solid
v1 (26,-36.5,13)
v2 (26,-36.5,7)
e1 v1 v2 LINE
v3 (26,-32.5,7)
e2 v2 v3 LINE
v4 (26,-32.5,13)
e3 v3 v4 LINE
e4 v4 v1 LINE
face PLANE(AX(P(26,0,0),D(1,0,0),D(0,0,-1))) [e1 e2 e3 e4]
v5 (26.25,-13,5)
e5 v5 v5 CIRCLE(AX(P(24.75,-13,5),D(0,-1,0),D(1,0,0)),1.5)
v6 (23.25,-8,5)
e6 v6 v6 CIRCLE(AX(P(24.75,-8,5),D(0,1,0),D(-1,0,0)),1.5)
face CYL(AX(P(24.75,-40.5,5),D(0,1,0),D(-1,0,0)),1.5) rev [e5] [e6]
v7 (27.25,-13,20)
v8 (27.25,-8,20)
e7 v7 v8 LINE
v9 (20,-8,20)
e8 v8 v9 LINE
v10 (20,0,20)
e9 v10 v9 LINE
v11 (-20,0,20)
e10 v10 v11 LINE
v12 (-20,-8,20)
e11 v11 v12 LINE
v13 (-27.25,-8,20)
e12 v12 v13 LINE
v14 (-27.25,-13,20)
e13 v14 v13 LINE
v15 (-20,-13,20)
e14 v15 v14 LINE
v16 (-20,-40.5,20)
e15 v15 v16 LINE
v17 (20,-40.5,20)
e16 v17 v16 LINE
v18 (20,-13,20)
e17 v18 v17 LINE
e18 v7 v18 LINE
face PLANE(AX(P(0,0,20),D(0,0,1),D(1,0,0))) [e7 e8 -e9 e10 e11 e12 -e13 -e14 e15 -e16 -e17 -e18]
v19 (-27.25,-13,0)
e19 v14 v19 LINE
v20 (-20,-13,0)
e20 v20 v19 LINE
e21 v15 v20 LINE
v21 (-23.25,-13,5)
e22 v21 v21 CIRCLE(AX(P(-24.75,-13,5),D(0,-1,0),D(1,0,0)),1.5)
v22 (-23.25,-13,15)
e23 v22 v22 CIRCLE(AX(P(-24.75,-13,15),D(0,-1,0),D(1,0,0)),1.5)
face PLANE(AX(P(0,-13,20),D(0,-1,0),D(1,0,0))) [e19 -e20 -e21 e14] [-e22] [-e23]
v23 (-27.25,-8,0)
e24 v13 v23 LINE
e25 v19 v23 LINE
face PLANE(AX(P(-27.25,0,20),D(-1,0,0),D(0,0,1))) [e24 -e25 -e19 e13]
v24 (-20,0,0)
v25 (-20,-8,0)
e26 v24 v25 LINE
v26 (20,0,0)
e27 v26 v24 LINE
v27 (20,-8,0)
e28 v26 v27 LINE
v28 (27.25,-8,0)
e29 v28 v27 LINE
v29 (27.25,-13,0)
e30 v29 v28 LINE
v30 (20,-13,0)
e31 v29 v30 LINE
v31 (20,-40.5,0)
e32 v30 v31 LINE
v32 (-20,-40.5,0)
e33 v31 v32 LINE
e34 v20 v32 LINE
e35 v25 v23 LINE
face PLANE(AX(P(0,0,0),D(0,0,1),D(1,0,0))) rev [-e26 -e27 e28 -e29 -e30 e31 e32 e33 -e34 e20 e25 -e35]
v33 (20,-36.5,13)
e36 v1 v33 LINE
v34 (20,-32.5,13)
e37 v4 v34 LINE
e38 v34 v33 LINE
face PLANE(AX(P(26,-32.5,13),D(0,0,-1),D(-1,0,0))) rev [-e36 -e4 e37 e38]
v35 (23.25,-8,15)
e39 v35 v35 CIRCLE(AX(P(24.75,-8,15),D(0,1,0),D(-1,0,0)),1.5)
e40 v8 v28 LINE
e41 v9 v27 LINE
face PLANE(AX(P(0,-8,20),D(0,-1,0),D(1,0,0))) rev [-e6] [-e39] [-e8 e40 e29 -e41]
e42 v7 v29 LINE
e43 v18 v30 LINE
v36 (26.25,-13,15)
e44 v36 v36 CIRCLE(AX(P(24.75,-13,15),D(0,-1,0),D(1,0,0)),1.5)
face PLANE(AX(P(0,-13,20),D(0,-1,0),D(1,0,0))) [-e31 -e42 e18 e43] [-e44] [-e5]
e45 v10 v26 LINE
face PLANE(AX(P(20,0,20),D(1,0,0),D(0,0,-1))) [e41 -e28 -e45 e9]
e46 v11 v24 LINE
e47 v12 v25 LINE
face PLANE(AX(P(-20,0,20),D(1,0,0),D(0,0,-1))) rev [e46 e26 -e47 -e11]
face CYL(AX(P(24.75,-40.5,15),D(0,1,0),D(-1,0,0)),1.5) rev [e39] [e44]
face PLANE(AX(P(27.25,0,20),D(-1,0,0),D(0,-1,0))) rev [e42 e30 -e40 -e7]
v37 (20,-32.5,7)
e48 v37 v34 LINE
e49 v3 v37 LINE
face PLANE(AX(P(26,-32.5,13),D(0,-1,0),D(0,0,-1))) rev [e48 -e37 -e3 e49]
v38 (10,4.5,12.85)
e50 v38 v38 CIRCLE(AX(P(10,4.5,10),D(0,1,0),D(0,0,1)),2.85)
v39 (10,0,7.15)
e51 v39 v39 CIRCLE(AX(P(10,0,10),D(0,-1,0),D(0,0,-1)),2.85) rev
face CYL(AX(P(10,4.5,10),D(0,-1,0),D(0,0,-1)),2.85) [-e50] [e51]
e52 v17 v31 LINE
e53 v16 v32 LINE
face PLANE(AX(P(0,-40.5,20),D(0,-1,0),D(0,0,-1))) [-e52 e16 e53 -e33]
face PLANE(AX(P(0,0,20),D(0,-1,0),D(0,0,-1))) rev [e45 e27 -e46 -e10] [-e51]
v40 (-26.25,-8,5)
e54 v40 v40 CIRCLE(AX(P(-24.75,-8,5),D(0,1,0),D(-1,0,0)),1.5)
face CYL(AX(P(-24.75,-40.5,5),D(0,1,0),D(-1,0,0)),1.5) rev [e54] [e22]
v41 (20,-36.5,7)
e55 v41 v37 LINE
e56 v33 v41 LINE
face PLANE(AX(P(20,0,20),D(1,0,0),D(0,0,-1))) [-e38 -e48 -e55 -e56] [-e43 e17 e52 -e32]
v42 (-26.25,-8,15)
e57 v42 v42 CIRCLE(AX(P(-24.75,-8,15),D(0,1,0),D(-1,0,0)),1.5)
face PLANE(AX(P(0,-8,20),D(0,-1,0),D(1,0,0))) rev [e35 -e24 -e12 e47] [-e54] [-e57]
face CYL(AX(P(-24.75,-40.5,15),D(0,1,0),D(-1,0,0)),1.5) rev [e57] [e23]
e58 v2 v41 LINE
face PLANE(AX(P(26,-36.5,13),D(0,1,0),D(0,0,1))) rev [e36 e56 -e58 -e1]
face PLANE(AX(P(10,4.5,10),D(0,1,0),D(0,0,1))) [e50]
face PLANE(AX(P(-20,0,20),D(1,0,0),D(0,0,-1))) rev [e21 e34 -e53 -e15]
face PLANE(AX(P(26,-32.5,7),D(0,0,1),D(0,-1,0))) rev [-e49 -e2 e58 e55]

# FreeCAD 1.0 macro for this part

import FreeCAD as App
import Part
import Sketcher
Q = App.Units.Quantity


def add_polygon(sketch, points):
    """Adds a closed chain of lines whose ends are joined by coincident constraints."""
    first, n = sketch.GeometryCount, len(points)
    for a, b in zip(points, points[1:] + points[:1]):
        sketch.addGeometry(Part.LineSegment(App.Vector(*a, 0), App.Vector(*b, 0)), False)
    for i in range(n):
        sketch.addConstraint(Sketcher.Constraint("Coincident", first + i, 2, first + (i + 1) % n, 1))

doc = App.newDocument("Part")
body = doc.addObject("PartDesign::Body", "Body")

sketch1 = body.newObject("Sketcher::SketchObject", "Sketch")
sketch1.AttachmentSupport = (doc.getObject("XY_Plane"), [""])
sketch1.MapMode = "FlatFace"
add_polygon(sketch1, [(-20, 0), (-20, -8), (-27, -8), (-27, -13), (-20, -13), (-20, -40), (20, -40), (20, -13), (27, -13), (27, -8), (20, -8), (20, 0)])
sketch1.addConstraint(Sketcher.Constraint("Vertical", 0))
sketch1.addConstraint(Sketcher.Constraint("Horizontal", 1))
sketch1.addConstraint(Sketcher.Constraint("Vertical", 2))
sketch1.addConstraint(Sketcher.Constraint("Horizontal", 3))
sketch1.addConstraint(Sketcher.Constraint("Vertical", 4))
sketch1.addConstraint(Sketcher.Constraint("Horizontal", 5))
sketch1.addConstraint(Sketcher.Constraint("Vertical", 6))
sketch1.addConstraint(Sketcher.Constraint("Horizontal", 7))
sketch1.addConstraint(Sketcher.Constraint("Vertical", 8))
sketch1.addConstraint(Sketcher.Constraint("Horizontal", 9))
sketch1.addConstraint(Sketcher.Constraint("Vertical", 10))
sketch1.addConstraint(Sketcher.Constraint("Horizontal", 11))
sketch1.addConstraint(Sketcher.Constraint("Symmetric", 10, 2, 11, 2, -1, 1))
sketch1.addConstraint(Sketcher.Constraint("Symmetric", 3, 2, 6, 2, -2))
sketch1.addConstraint(Sketcher.Constraint("Symmetric", 1, 2, 8, 2, -2))
sketch1.addConstraint(Sketcher.Constraint("Vertical", 0, 2, 3, 2))
sketch1.addConstraint(Sketcher.Constraint("DistanceX", 5, 1, 5, 2, Q("40 mm")))
sketch1.addConstraint(Sketcher.Constraint("DistanceY", 0, 2, 0, 1, Q("8 mm")))
sketch1.addConstraint(Sketcher.Constraint("DistanceY", 2, 2, 2, 1, Q("5 mm")))
sketch1.addConstraint(Sketcher.Constraint("DistanceY", 4, 2, 4, 1, Q("27.5 mm")))
sketch1.addConstraint(Sketcher.Constraint("DistanceX", 1, 2, 1, 1, Q("7.25 mm")))
pad1 = body.newObject("PartDesign::Pad", "Pad")
pad1.Profile = sketch1
pad1.Length = 20

sketch2 = body.newObject("Sketcher::SketchObject", "Sketch001")
sketch2.AttachmentSupport = (doc.getObject("XZ_Plane"), [""])
sketch2.MapMode = "FlatFace"
sketch2.addGeometry(Part.Circle(App.Vector(10, 10, 0), App.Vector(0, 0, 1), 2.9), False)
sketch2.addConstraint(Sketcher.Constraint("Diameter", 0, Q("5.7 mm")))
sketch2.addConstraint(Sketcher.Constraint("DistanceX", -1, 1, 0, 3, Q("10 mm")))
sketch2.addConstraint(Sketcher.Constraint("DistanceY", -1, 1, 0, 3, Q("10 mm")))
pad2 = body.newObject("PartDesign::Pad", "Pad001")
pad2.Profile = sketch2
pad2.Length = 4.5
pad2.Reversed = True

sketch3 = body.newObject("Sketcher::SketchObject", "Sketch002")
sketch3.AttachmentSupport = (doc.getObject("XZ_Plane"), [""])
sketch3.MapMode = "FlatFace"
sketch3.AttachmentOffset = App.Placement(App.Vector(0, 0, 8), App.Rotation())
sketch3.addGeometry(Part.Circle(App.Vector(-24.8, 5, 0), App.Vector(0, 0, 1), 1.5), False)
sketch3.addGeometry(Part.Circle(App.Vector(-24.8, 15, 0), App.Vector(0, 0, 1), 1.5), False)
sketch3.addGeometry(Part.Circle(App.Vector(24.8, 15, 0), App.Vector(0, 0, 1), 1.5), False)
sketch3.addGeometry(Part.Circle(App.Vector(24.8, 5, 0), App.Vector(0, 0, 1), 1.5), False)
sketch3.addConstraint(Sketcher.Constraint("Equal", 0, 1))
sketch3.addConstraint(Sketcher.Constraint("Equal", 1, 2))
sketch3.addConstraint(Sketcher.Constraint("Equal", 2, 3))
sketch3.addConstraint(Sketcher.Constraint("Symmetric", 1, 3, 2, 3, -2))
sketch3.addConstraint(Sketcher.Constraint("Symmetric", 0, 3, 3, 3, -2))
sketch3.addConstraint(Sketcher.Constraint("Vertical", 0, 3, 1, 3))
sketch3.addConstraint(Sketcher.Constraint("Diameter", 0, Q("3 mm")))
sketch3.addConstraint(Sketcher.Constraint("DistanceY", -1, 1, 0, 3, Q("5 mm")))
sketch3.addConstraint(Sketcher.Constraint("DistanceY", -1, 1, 1, 3, Q("15 mm")))
sketch3.addConstraint(Sketcher.Constraint("DistanceX", 1, 3, 2, 3, Q("49.5 mm")))
pocket1 = body.newObject("PartDesign::Pocket", "Pocket")
pocket1.Profile = sketch3
pocket1.Type = "ThroughAll"
pocket1.Reversed = True

sketch4 = body.newObject("Sketcher::SketchObject", "Sketch003")
sketch4.AttachmentSupport = (doc.getObject("YZ_Plane"), [""])
sketch4.MapMode = "FlatFace"
sketch4.AttachmentOffset = App.Placement(App.Vector(0, 0, 20), App.Rotation())
add_polygon(sketch4, [(-32.5, 13), (-36.5, 13), (-36.5, 7), (-32.5, 7)])
sketch4.addConstraint(Sketcher.Constraint("Horizontal", 0))
sketch4.addConstraint(Sketcher.Constraint("Vertical", 1))
sketch4.addConstraint(Sketcher.Constraint("Horizontal", 2))
sketch4.addConstraint(Sketcher.Constraint("Vertical", 3))
sketch4.addConstraint(Sketcher.Constraint("DistanceX", 0, 2, 0, 1, Q("4 mm")))
sketch4.addConstraint(Sketcher.Constraint("DistanceY", 1, 2, 1, 1, Q("6 mm")))
sketch4.addConstraint(Sketcher.Constraint("DistanceY", -1, 1, 0, 2, Q("13 mm")))
sketch4.addConstraint(Sketcher.Constraint("DistanceX", 0, 2, -1, 1, Q("36.5 mm")))
pad3 = body.newObject("PartDesign::Pad", "Pad002")
pad3.Profile = sketch4
pad3.Length = 6

doc.recompute()
